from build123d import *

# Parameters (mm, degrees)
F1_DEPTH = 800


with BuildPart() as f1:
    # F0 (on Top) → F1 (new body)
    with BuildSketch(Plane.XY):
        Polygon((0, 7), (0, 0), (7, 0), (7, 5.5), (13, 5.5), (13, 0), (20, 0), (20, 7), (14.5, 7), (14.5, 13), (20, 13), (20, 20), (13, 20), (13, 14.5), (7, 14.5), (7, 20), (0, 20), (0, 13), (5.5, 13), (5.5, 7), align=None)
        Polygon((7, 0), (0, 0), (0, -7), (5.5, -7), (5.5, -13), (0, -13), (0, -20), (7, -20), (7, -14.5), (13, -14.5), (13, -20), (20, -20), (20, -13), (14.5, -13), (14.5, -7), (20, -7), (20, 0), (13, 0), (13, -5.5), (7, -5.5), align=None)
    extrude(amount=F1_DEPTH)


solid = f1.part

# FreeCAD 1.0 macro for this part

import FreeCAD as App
import Part
import Sketcher
from FreeCAD import Vector
Q = App.Units.Quantity

doc = App.newDocument("Part")
params = doc.addObject("Spreadsheet::Sheet", "Params")
for row, (alias, value) in enumerate([
    ("sketch1_width", "7 mm"),
    ("sketch1_width2", "6 mm"),
    ("sketch1_height", "14 mm"),
    ("sketch1_height2", "11 mm"),
    ("sketch1_width3", "5.5 mm"),
    ("pad1_length", "800 mm"),
], start=1):
    params.set(f"A{row}", alias)
    params.set(f"B{row}", "=" + value)
    params.setAlias(f"B{row}", alias)

body = doc.addObject("PartDesign::Body", "Body")

sketch1 = body.newObject("Sketcher::SketchObject", "Sketch")
sketch1.AttachmentSupport = (doc.getObject("XY_Plane"), [""])
sketch1.MapMode = "FlatFace"
sketch1.addGeometry([
    Part.LineSegment(Vector(0, 7, 0), Vector(0, -7, 0)),
    Part.LineSegment(Vector(0, -7, 0), Vector(6, -7, 0)),
    Part.LineSegment(Vector(6, -7, 0), Vector(6, -13, 0)),
    Part.LineSegment(Vector(6, -13, 0), Vector(0, -13, 0)),
    Part.LineSegment(Vector(0, -13, 0), Vector(0, -20, 0)),
    Part.LineSegment(Vector(0, -20, 0), Vector(7, -20, 0)),
    Part.LineSegment(Vector(7, -20, 0), Vector(7, -14, 0)),
    Part.LineSegment(Vector(7, -14, 0), Vector(13, -14, 0)),
    Part.LineSegment(Vector(13, -14, 0), Vector(13, -20, 0)),
    Part.LineSegment(Vector(13, -20, 0), Vector(20, -20, 0)),
    Part.LineSegment(Vector(20, -20, 0), Vector(20, -13, 0)),
    Part.LineSegment(Vector(20, -13, 0), Vector(14, -13, 0)),
    Part.LineSegment(Vector(14, -13, 0), Vector(14, -7, 0)),
    Part.LineSegment(Vector(14, -7, 0), Vector(20, -7, 0)),
    Part.LineSegment(Vector(20, -7, 0), Vector(20, 7, 0)),
    Part.LineSegment(Vector(20, 7, 0), Vector(14, 7, 0)),
    Part.LineSegment(Vector(14, 7, 0), Vector(14, 13, 0)),
    Part.LineSegment(Vector(14, 13, 0), Vector(20, 13, 0)),
    Part.LineSegment(Vector(20, 13, 0), Vector(20, 20, 0)),
    Part.LineSegment(Vector(20, 20, 0), Vector(13, 20, 0)),
    Part.LineSegment(Vector(13, 20, 0), Vector(13, 14, 0)),
    Part.LineSegment(Vector(13, 14, 0), Vector(7, 14, 0)),
    Part.LineSegment(Vector(7, 14, 0), Vector(7, 20, 0)),
    Part.LineSegment(Vector(7, 20, 0), Vector(0, 20, 0)),
    Part.LineSegment(Vector(0, 20, 0), Vector(0, 13, 0)),
    Part.LineSegment(Vector(0, 13, 0), Vector(6, 13, 0)),
    Part.LineSegment(Vector(6, 13, 0), Vector(6, 7, 0)),
    Part.LineSegment(Vector(6, 7, 0), Vector(0, 7, 0)),
    Part.LineSegment(Vector(7, 6, 0), Vector(13, 6, 0)),
    Part.LineSegment(Vector(13, 6, 0), Vector(13, -6, 0)),
    Part.LineSegment(Vector(13, -6, 0), Vector(7, -6, 0)),
    Part.LineSegment(Vector(7, -6, 0), Vector(7, 6, 0)),
], False)
sketch1.addConstraint([
    Sketcher.Constraint("Coincident", 0, 2, 1, 1),
    Sketcher.Constraint("Coincident", 1, 2, 2, 1),
    Sketcher.Constraint("Coincident", 2, 2, 3, 1),
    Sketcher.Constraint("Coincident", 3, 2, 4, 1),
    Sketcher.Constraint("Coincident", 4, 2, 5, 1),
    Sketcher.Constraint("Coincident", 5, 2, 6, 1),
    Sketcher.Constraint("Coincident", 6, 2, 7, 1),
    Sketcher.Constraint("Coincident", 7, 2, 8, 1),
    Sketcher.Constraint("Coincident", 8, 2, 9, 1),
    Sketcher.Constraint("Coincident", 9, 2, 10, 1),
    Sketcher.Constraint("Coincident", 10, 2, 11, 1),
    Sketcher.Constraint("Coincident", 11, 2, 12, 1),
    Sketcher.Constraint("Coincident", 12, 2, 13, 1),
    Sketcher.Constraint("Coincident", 13, 2, 14, 1),
    Sketcher.Constraint("Coincident", 14, 2, 15, 1),
    Sketcher.Constraint("Coincident", 15, 2, 16, 1),
    Sketcher.Constraint("Coincident", 16, 2, 17, 1),
    Sketcher.Constraint("Coincident", 17, 2, 18, 1),
    Sketcher.Constraint("Coincident", 18, 2, 19, 1),
    Sketcher.Constraint("Coincident", 19, 2, 20, 1),
    Sketcher.Constraint("Coincident", 20, 2, 21, 1),
    Sketcher.Constraint("Coincident", 21, 2, 22, 1),
    Sketcher.Constraint("Coincident", 22, 2, 23, 1),
    Sketcher.Constraint("Coincident", 23, 2, 24, 1),
    Sketcher.Constraint("Coincident", 24, 2, 25, 1),
    Sketcher.Constraint("Coincident", 25, 2, 26, 1),
    Sketcher.Constraint("Coincident", 26, 2, 27, 1),
    Sketcher.Constraint("Coincident", 27, 2, 0, 1),
    Sketcher.Constraint("Coincident", 28, 2, 29, 1),
    Sketcher.Constraint("Coincident", 29, 2, 30, 1),
    Sketcher.Constraint("Coincident", 30, 2, 31, 1),
    Sketcher.Constraint("Coincident", 31, 2, 28, 1),
    Sketcher.Constraint("Vertical", 0),
    Sketcher.Constraint("Horizontal", 1),
    Sketcher.Constraint("Vertical", 2),
    Sketcher.Constraint("Horizontal", 3),
    Sketcher.Constraint("Vertical", 4),
    Sketcher.Constraint("Horizontal", 5),
    Sketcher.Constraint("Vertical", 6),
    Sketcher.Constraint("Horizontal", 7),
    Sketcher.Constraint("Vertical", 8),
    Sketcher.Constraint("Horizontal", 9),
    Sketcher.Constraint("Vertical", 10),
    Sketcher.Constraint("Horizontal", 11),
    Sketcher.Constraint("Vertical", 12),
    Sketcher.Constraint("Horizontal", 13),
    Sketcher.Constraint("Vertical", 14),
    Sketcher.Constraint("Horizontal", 15),
    Sketcher.Constraint("Vertical", 16),
    Sketcher.Constraint("Horizontal", 17),
    Sketcher.Constraint("Vertical", 18),
    Sketcher.Constraint("Horizontal", 19),
    Sketcher.Constraint("Vertical", 20),
    Sketcher.Constraint("Horizontal", 21),
    Sketcher.Constraint("Vertical", 22),
    Sketcher.Constraint("Horizontal", 23),
    Sketcher.Constraint("Vertical", 24),
    Sketcher.Constraint("Horizontal", 25),
    Sketcher.Constraint("Vertical", 26),
    Sketcher.Constraint("Horizontal", 27),
    Sketcher.Constraint("Horizontal", 28),
    Sketcher.Constraint("Vertical", 29),
    Sketcher.Constraint("Horizontal", 30),
    Sketcher.Constraint("Vertical", 31),
    Sketcher.Constraint("Symmetric", 4, 2, 23, 2, -1, 1),
    Sketcher.Constraint("Symmetric", 0, 2, 27, 2, -1, 1),
    Sketcher.Constraint("Symmetric", 12, 2, 15, 2, -1),
    Sketcher.Constraint("Symmetric", 10, 2, 17, 2, -1),
    Sketcher.Constraint("Symmetric", 8, 2, 19, 2, -1),
    Sketcher.Constraint("Symmetric", 6, 2, 21, 2, -1),
    Sketcher.Constraint("Symmetric", 3, 2, 24, 2, -1),
    Sketcher.Constraint("Horizontal", 5, 2, 8, 2),
    Sketcher.Constraint("Horizontal", 3, 2, 10, 2),
    Sketcher.Constraint("Horizontal", 1, 2, 12, 2),
    Sketcher.Constraint("Vertical", 10, 2, 13, 2),
    Sketcher.Constraint("Vertical", 2, 2, 25, 2),
    Sketcher.Constraint("Vertical", 20, 2, 28, 2),
    Sketcher.Constraint("Vertical", 22, 2, 30, 2),
    Sketcher.Constraint("Equal", 5, 9),
    Sketcher.Constraint("Equal", 3, 11),
    Sketcher.Constraint("Equal", 30, 2),
    Sketcher.Constraint("Equal", 23, 4),
    Sketcher.Constraint("Equal", 27, 6),
    Sketcher.Constraint("DistanceX", 5, 1, 5, 2, Q("7 mm")),
    Sketcher.Constraint("DistanceX", 7, 1, 7, 2, Q("6 mm")),
    Sketcher.Constraint("DistanceY", 0, 2, 0, 1, Q("14 mm")),
    Sketcher.Constraint("DistanceY", 29, 2, 29, 1, Q("11 mm")),
    Sketcher.Constraint("DistanceX", 1, 1, 1, 2, Q("5.5 mm")),
    Sketcher.Constraint("DistanceY", 28, 2, 20, 2, Q("9 mm")),
])
sketch1.setExpression("Constraints[83]", "Params.sketch1_width")
sketch1.setExpression("Constraints[84]", "Params.sketch1_width2")
sketch1.setExpression("Constraints[85]", "Params.sketch1_height")
sketch1.setExpression("Constraints[86]", "Params.sketch1_height2")
sketch1.setExpression("Constraints[87]", "Params.sketch1_width3")
pad1 = body.newObject("PartDesign::Pad", "Pad")
pad1.Profile = sketch1
pad1.setExpression("Length", "Params.pad1_length")

doc.recompute()
